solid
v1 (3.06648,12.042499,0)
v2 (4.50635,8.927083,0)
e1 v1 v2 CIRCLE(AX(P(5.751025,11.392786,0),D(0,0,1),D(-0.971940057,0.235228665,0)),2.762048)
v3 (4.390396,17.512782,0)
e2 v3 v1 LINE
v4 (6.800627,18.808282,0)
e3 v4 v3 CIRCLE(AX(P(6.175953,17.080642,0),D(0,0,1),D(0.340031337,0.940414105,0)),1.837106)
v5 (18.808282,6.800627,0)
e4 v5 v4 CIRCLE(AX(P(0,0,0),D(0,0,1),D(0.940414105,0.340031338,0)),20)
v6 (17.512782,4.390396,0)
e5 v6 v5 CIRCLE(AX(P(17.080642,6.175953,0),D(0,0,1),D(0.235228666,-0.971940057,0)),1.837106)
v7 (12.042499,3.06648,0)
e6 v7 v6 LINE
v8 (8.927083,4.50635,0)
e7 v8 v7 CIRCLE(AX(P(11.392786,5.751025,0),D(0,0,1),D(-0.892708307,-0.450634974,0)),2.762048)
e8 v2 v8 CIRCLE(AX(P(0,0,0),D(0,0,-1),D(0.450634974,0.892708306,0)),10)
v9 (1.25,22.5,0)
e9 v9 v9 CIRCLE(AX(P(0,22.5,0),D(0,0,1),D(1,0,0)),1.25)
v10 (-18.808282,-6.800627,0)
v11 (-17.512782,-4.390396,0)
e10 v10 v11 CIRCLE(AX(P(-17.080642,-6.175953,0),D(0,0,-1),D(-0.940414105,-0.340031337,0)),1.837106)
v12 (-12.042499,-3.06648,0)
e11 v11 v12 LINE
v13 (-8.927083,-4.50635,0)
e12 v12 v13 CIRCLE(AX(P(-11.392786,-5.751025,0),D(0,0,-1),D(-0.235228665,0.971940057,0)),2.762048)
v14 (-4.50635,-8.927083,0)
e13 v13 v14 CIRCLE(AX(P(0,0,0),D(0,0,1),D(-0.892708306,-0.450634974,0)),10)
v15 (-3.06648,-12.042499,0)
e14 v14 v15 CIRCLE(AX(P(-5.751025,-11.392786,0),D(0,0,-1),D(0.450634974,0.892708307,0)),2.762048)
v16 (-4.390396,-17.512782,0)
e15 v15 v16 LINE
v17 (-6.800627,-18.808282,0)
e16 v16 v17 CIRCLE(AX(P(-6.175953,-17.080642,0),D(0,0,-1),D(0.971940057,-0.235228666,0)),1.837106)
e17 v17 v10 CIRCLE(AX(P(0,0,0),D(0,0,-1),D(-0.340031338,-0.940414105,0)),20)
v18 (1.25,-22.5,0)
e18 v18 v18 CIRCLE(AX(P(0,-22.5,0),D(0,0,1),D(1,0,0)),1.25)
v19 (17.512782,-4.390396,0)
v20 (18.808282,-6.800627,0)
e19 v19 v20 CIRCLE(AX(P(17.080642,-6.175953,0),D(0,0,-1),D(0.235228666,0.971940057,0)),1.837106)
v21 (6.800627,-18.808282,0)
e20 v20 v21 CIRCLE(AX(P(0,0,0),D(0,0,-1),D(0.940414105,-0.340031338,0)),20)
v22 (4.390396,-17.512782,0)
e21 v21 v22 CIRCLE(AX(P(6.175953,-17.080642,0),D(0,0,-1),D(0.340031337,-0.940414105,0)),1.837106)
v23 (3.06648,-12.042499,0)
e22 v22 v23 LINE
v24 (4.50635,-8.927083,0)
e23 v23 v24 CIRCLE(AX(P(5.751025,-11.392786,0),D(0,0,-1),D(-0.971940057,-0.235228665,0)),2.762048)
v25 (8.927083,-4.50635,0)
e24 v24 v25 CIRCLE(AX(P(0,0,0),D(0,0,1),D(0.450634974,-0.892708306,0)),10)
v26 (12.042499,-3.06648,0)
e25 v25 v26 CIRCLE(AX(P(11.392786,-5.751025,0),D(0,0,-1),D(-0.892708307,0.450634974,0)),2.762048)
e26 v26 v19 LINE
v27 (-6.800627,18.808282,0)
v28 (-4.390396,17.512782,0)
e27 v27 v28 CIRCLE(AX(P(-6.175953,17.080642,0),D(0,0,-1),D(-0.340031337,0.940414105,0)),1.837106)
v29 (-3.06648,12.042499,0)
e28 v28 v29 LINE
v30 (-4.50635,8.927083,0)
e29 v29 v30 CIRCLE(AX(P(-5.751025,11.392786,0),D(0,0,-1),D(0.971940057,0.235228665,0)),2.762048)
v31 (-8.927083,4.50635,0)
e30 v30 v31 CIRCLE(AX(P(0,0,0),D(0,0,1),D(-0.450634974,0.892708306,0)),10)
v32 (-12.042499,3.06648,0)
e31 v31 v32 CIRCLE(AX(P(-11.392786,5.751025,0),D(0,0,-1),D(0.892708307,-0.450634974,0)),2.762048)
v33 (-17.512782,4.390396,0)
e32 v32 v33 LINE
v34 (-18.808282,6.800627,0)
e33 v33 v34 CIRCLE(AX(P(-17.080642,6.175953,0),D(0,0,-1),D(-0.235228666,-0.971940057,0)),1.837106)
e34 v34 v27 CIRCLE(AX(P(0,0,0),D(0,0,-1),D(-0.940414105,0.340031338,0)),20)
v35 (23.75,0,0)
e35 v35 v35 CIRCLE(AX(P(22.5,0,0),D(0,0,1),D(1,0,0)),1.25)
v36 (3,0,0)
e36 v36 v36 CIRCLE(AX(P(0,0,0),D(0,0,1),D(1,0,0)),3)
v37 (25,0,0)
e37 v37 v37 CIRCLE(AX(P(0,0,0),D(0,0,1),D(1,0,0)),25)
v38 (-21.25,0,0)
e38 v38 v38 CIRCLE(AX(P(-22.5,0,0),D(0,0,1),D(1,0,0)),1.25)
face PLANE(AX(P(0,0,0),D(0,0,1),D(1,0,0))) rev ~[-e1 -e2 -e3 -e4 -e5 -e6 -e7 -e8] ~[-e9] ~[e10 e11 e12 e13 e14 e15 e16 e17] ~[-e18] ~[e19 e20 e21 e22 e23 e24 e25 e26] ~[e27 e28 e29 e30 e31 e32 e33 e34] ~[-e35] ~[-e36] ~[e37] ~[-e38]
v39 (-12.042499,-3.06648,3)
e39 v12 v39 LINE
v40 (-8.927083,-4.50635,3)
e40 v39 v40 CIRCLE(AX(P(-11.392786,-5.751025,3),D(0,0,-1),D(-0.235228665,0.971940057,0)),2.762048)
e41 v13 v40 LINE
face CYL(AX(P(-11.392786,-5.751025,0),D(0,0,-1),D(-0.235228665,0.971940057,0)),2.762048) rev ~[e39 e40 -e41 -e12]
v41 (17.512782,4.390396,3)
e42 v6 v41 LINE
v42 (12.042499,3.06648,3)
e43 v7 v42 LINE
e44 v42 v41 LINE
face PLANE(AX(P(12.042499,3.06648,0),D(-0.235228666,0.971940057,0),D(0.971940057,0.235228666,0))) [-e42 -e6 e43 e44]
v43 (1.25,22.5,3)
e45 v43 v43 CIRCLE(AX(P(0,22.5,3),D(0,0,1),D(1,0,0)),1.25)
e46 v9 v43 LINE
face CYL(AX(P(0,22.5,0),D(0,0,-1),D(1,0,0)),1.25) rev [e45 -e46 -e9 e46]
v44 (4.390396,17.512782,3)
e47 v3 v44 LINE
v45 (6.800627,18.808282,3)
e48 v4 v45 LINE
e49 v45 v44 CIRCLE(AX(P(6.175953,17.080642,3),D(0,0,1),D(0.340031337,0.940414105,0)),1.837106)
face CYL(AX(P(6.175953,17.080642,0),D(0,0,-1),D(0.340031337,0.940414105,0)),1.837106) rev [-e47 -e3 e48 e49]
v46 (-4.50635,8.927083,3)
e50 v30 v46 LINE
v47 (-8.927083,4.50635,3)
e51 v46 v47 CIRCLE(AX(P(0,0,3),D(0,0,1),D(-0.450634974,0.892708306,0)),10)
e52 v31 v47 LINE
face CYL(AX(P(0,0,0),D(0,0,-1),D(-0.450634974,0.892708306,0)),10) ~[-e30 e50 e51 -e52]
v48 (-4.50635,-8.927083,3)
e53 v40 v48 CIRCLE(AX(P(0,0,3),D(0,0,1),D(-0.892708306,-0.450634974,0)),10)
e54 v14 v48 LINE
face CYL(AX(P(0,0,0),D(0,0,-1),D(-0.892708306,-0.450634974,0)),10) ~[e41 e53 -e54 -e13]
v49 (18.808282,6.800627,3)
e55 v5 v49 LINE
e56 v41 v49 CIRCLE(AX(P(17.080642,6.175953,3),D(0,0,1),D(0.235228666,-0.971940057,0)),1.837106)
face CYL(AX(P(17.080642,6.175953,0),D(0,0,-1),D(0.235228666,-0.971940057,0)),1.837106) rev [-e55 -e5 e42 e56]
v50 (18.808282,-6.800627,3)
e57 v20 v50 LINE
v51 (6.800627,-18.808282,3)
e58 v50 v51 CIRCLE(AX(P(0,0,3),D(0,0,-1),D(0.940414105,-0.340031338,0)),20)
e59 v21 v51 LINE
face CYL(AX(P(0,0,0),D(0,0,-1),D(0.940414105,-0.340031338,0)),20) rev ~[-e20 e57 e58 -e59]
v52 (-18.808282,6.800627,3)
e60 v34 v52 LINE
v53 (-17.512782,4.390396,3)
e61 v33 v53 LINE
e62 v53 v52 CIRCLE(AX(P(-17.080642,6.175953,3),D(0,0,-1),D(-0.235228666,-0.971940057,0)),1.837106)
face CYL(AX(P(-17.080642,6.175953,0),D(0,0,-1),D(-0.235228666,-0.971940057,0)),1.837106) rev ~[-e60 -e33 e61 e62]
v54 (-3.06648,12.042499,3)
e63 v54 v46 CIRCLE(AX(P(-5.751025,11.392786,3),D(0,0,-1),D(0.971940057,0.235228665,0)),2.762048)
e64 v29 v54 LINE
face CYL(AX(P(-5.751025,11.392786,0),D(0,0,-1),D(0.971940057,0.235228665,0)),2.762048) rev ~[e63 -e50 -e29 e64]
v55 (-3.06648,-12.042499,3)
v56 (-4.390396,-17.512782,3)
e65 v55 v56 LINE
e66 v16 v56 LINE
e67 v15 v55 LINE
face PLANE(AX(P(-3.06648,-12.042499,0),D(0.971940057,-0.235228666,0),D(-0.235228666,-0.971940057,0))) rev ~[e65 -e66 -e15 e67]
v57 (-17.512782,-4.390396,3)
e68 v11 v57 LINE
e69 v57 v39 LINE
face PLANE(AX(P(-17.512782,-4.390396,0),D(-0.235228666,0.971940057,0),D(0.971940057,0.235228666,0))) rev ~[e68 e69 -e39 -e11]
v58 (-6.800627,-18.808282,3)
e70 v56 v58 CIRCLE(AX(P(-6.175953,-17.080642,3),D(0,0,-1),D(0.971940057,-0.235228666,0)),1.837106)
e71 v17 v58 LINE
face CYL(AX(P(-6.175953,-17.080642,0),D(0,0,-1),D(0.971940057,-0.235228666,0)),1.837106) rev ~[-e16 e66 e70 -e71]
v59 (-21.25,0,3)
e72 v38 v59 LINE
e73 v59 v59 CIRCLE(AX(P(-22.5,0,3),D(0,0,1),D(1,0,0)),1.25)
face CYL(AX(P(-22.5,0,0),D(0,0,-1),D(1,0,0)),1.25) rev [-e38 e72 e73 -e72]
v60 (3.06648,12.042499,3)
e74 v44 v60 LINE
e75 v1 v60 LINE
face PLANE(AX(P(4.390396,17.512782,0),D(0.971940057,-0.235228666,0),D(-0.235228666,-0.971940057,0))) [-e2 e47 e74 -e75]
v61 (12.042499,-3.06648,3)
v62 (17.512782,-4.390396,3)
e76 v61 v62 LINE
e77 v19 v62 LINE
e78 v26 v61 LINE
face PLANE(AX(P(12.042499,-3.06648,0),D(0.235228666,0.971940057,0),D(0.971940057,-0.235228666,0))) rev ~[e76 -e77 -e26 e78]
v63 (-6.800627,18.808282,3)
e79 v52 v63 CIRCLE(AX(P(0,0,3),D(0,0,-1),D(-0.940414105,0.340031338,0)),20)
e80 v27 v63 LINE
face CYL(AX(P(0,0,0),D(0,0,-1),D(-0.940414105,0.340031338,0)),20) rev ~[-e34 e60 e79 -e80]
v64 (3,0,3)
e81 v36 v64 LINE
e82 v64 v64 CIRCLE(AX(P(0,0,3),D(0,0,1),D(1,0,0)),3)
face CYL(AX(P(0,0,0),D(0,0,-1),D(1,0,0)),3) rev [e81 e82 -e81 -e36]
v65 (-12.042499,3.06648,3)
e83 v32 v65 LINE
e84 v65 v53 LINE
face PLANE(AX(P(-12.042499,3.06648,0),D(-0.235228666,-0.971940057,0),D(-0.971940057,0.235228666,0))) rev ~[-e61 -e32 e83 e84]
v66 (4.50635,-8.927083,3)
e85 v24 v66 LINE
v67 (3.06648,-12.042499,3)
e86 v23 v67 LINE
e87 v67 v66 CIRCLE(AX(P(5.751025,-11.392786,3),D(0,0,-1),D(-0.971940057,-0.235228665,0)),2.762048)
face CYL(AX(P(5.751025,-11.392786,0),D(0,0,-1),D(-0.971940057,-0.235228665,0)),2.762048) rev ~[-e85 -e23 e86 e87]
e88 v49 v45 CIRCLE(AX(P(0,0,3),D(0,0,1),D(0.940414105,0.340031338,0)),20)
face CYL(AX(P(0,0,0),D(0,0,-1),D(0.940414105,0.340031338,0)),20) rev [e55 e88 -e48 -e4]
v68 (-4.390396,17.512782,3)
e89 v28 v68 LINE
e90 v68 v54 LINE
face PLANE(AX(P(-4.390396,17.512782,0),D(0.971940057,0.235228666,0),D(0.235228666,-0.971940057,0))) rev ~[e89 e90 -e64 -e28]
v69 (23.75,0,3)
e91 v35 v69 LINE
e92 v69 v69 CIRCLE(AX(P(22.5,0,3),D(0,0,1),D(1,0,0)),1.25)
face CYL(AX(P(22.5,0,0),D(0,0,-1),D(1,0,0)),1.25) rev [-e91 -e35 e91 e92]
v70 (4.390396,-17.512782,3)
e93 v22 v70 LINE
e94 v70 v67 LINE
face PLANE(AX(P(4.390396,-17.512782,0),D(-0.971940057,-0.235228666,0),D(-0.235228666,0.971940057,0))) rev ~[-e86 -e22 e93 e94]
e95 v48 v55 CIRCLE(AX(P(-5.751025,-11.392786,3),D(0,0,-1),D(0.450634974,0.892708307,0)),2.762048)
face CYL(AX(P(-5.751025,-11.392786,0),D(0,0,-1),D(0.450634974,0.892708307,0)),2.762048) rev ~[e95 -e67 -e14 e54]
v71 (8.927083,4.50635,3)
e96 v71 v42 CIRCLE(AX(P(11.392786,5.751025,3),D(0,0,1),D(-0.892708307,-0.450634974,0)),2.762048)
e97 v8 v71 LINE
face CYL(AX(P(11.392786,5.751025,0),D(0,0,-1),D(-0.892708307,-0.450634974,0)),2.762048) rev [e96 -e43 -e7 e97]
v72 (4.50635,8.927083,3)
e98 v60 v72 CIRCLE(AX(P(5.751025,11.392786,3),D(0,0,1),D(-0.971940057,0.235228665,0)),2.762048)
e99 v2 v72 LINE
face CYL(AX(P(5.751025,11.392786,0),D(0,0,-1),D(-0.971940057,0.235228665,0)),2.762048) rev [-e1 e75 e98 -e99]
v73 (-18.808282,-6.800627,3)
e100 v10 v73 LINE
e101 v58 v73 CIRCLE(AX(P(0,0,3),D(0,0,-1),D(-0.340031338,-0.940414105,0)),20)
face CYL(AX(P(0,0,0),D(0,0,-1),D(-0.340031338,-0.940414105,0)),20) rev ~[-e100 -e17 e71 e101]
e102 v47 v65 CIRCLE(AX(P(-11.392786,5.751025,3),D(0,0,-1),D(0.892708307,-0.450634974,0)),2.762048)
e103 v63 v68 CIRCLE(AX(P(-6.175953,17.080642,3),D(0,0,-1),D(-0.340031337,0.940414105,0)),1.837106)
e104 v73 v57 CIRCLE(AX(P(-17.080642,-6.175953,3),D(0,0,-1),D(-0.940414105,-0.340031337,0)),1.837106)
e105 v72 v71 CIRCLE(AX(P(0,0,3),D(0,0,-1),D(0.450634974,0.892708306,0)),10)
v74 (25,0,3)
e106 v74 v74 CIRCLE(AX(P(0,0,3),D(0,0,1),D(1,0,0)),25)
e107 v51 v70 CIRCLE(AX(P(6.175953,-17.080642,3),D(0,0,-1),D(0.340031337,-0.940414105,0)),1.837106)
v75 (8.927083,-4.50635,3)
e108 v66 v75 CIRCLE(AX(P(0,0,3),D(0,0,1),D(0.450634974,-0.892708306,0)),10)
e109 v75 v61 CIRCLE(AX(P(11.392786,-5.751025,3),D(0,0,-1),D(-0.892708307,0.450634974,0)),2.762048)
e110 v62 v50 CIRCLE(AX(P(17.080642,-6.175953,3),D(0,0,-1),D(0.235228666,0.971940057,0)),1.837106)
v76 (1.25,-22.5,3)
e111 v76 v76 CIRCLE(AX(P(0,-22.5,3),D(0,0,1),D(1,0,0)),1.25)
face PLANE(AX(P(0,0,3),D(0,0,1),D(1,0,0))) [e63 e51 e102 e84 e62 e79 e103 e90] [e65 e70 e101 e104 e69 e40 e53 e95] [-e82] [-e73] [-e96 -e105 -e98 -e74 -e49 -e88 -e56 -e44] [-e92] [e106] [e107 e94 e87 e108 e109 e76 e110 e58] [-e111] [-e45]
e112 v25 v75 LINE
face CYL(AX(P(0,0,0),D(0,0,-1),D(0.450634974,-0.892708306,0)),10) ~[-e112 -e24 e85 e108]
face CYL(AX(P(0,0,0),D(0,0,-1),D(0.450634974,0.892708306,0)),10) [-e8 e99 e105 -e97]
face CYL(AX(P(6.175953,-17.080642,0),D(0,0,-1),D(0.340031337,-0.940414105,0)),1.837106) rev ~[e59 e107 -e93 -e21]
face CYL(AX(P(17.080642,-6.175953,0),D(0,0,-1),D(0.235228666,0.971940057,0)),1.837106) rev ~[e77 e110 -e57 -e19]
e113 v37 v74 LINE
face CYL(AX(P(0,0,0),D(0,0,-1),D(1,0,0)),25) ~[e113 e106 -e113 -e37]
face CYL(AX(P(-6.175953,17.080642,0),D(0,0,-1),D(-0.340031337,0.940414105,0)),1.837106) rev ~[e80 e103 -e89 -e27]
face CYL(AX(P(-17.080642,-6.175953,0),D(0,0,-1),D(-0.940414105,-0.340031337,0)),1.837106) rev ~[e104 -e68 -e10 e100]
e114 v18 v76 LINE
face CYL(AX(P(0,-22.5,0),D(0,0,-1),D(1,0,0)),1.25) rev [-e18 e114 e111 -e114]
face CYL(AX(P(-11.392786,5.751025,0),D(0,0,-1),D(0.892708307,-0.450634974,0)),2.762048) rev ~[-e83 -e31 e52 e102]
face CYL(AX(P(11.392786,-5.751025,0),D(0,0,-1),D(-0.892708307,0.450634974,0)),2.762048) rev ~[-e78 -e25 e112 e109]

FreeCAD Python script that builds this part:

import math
import FreeCAD as App
import Part
import Sketcher

V = App.Vector

doc = App.newDocument("Part")
params = doc.addObject("Spreadsheet::Sheet", "Params")
for row, (alias, value) in enumerate([
    ("sketch1_diameter", "50 mm"),
    ("sketch1_diameter2", "6 mm"),
    ("sketch1_radius", "10 mm"),
    ("sketch1_radius2", "20 mm"),
    ("sketch1_diameter3", "2.5 mm"),
    ("pad1_length", "3 mm"),
], start=1):
    params.set(f"A{row}", alias)
    params.set(f"B{row}", "=" + value)
    params.setAlias(f"B{row}", alias)

body = doc.addObject("PartDesign::Body", "Body")

sketch1 = doc.addObject("Sketcher::SketchObject", "Sketch")
body.addObject(sketch1)
sketch1.AttachmentSupport = (doc.XY_Plane, [""])
sketch1.MapMode = "FlatFace"
sketch1.addGeometry([
    Part.Circle(V(0, 0, 0), V(0, 0, 1), 25),
    Part.ArcOfCircle(Part.Circle(V(-17.080642, -6.175953, 0), V(0, 0, 1), 1.837106), math.radians(103.605102), math.radians(199.878783)),
    Part.LineSegment(V(-17.512782, -4.390396, 0), V(-12.042499, -3.06648, 0)),
    Part.ArcOfCircle(Part.Circle(V(-11.392786, -5.751025, 0), V(0, 0, 1), 2.762048), math.radians(26.78443), math.radians(103.605102)),
    Part.ArcOfCircle(Part.Circle(V(0, 0, 0), V(0, 0, 1), 10), math.radians(-153.215569), math.radians(-116.784431)),
    Part.ArcOfCircle(Part.Circle(V(-5.751025, -11.392786, 0), V(0, 0, 1), 2.762048), math.radians(-13.605102), math.radians(63.21557)),
    Part.LineSegment(V(-3.06648, -12.042499, 0), V(-4.390396, -17.512782, 0)),
    Part.ArcOfCircle(Part.Circle(V(-6.175953, -17.080642, 0), V(0, 0, 1), 1.837106), math.radians(-109.878783), math.radians(-13.605102)),
    Part.ArcOfCircle(Part.Circle(V(0, 0, 0), V(0, 0, 1), 20), math.radians(-160.121217), math.radians(-109.878783)),
    Part.Circle(V(0, -22.5, 0), V(0, 0, 1), 1.25),
    Part.ArcOfCircle(Part.Circle(V(6.175953, -17.080642, 0), V(0, 0, 1), 1.837106), math.radians(-166.394898), math.radians(-70.121217)),
    Part.LineSegment(V(4.390396, -17.512782, 0), V(3.06648, -12.042499, 0)),
    Part.ArcOfCircle(Part.Circle(V(5.751025, -11.392786, 0), V(0, 0, 1), 2.762048), math.radians(116.78443), math.radians(193.605102)),
    Part.ArcOfCircle(Part.Circle(V(0, 0, 0), V(0, 0, 1), 10), math.radians(-63.215569), math.radians(-26.784431)),
    Part.ArcOfCircle(Part.Circle(V(11.392786, -5.751025, 0), V(0, 0, 1), 2.762048), math.radians(76.394898), math.radians(153.21557)),
    Part.LineSegment(V(12.042499, -3.06648, 0), V(17.512782, -4.390396, 0)),
    Part.ArcOfCircle(Part.Circle(V(17.080642, -6.175953, 0), V(0, 0, 1), 1.837106), math.radians(-19.878783), math.radians(76.394898)),
    Part.ArcOfCircle(Part.Circle(V(0, 0, 0), V(0, 0, 1), 20), math.radians(-70.121217), math.radians(-19.878783)),
    Part.Circle(V(-22.5, 0, 0), V(0, 0, 1), 1.25),
    Part.ArcOfCircle(Part.Circle(V(-6.175953, 17.080642, 0), V(0, 0, 1), 1.837106), math.radians(13.605102), math.radians(109.878783)),
    Part.LineSegment(V(-4.390396, 17.512782, 0), V(-3.06648, 12.042499, 0)),
    Part.ArcOfCircle(Part.Circle(V(-5.751025, 11.392786, 0), V(0, 0, 1), 2.762048), math.radians(-63.21557), math.radians(13.605102)),
    Part.ArcOfCircle(Part.Circle(V(0, 0, 0), V(0, 0, 1), 10), math.radians(116.784431), math.radians(153.215569)),
    Part.ArcOfCircle(Part.Circle(V(-11.392786, 5.751025, 0), V(0, 0, 1), 2.762048), math.radians(-103.605102), math.radians(-26.78443)),
    Part.LineSegment(V(-12.042499, 3.06648, 0), V(-17.512782, 4.390396, 0)),
    Part.ArcOfCircle(Part.Circle(V(-17.080642, 6.175953, 0), V(0, 0, 1), 1.837106), math.radians(160.121217), math.radians(256.394898)),
    Part.ArcOfCircle(Part.Circle(V(0, 0, 0), V(0, 0, 1), 20), math.radians(109.878783), math.radians(160.121217)),
    Part.Circle(V(0, 0, 0), V(0, 0, 1), 3),
    Part.LineSegment(V(3.06648, 12.042499, 0), V(4.390396, 17.512782, 0)),
    Part.ArcOfCircle(Part.Circle(V(6.175953, 17.080642, 0), V(0, 0, 1), 1.837106), math.radians(70.121217), math.radians(166.394898)),
    Part.ArcOfCircle(Part.Circle(V(0, 0, 0), V(0, 0, 1), 20), math.radians(19.878783), math.radians(70.121217)),
    Part.ArcOfCircle(Part.Circle(V(17.080642, 6.175953, 0), V(0, 0, 1), 1.837106), math.radians(-76.394898), math.radians(19.878783)),
    Part.LineSegment(V(17.512782, 4.390396, 0), V(12.042499, 3.06648, 0)),
    Part.ArcOfCircle(Part.Circle(V(11.392786, 5.751025, 0), V(0, 0, 1), 2.762048), math.radians(-153.21557), math.radians(-76.394898)),
    Part.ArcOfCircle(Part.Circle(V(0, 0, 0), V(0, 0, 1), 10), math.radians(26.784431), math.radians(63.215569)),
    Part.ArcOfCircle(Part.Circle(V(5.751025, 11.392786, 0), V(0, 0, 1), 2.762048), math.radians(166.394898), math.radians(243.21557)),
    Part.Circle(V(22.5, 0, 0), V(0, 0, 1), 1.25),
    Part.Circle(V(0, 22.5, 0), V(0, 0, 1), 1.25),
], False)
sketch1.addConstraint([
    Sketcher.Constraint("Tangent", 1, 1, 2, 1),
    Sketcher.Constraint("Tangent", 2, 2, 3, 2),
    Sketcher.Constraint("Tangent", 3, 1, 4, 1),
    Sketcher.Constraint("Tangent", 4, 2, 5, 2),
    Sketcher.Constraint("Tangent", 5, 1, 6, 1),
    Sketcher.Constraint("Tangent", 6, 2, 7, 2),
    Sketcher.Constraint("Tangent", 7, 1, 8, 2),
    Sketcher.Constraint("Tangent", 8, 1, 1, 2),
    Sketcher.Constraint("Tangent", 10, 1, 11, 1),
    Sketcher.Constraint("Tangent", 11, 2, 12, 2),
    Sketcher.Constraint("Tangent", 12, 1, 13, 1),
    Sketcher.Constraint("Tangent", 13, 2, 14, 2),
    Sketcher.Constraint("Tangent", 14, 1, 15, 1),
    Sketcher.Constraint("Tangent", 15, 2, 16, 2),
    Sketcher.Constraint("Tangent", 16, 1, 17, 2),
    Sketcher.Constraint("Tangent", 17, 1, 10, 2),
    Sketcher.Constraint("Tangent", 19, 1, 20, 1),
    Sketcher.Constraint("Tangent", 20, 2, 21, 2),
    Sketcher.Constraint("Tangent", 21, 1, 22, 1),
    Sketcher.Constraint("Tangent", 22, 2, 23, 2),
    Sketcher.Constraint("Tangent", 23, 1, 24, 1),
    Sketcher.Constraint("Tangent", 24, 2, 25, 2),
    Sketcher.Constraint("Tangent", 25, 1, 26, 2),
    Sketcher.Constraint("Tangent", 26, 1, 19, 2),
    Sketcher.Constraint("Tangent", 28, 2, 29, 2),
    Sketcher.Constraint("Tangent", 29, 1, 30, 2),
    Sketcher.Constraint("Tangent", 30, 1, 31, 2),
    Sketcher.Constraint("Tangent", 31, 1, 32, 1),
    Sketcher.Constraint("Tangent", 32, 2, 33, 2),
    Sketcher.Constraint("Tangent", 33, 1, 34, 1),
    Sketcher.Constraint("Tangent", 34, 2, 35, 2),
    Sketcher.Constraint("Tangent", 35, 1, 28, 1),
    Sketcher.Constraint("Coincident", 0, 3, -1, 1),
    Sketcher.Constraint("Coincident", 4, 3, -1, 1),
    Sketcher.Constraint("Coincident", 8, 3, -1, 1),
    Sketcher.Constraint("Coincident", 13, 3, -1, 1),
    Sketcher.Constraint("Coincident", 17, 3, -1, 1),
    Sketcher.Constraint("Coincident", 22, 3, -1, 1),
    Sketcher.Constraint("Coincident", 26, 3, -1, 1),
    Sketcher.Constraint("Coincident", 27, 3, -1, 1),
    Sketcher.Constraint("Coincident", 30, 3, -1, 1),
    Sketcher.Constraint("Coincident", 34, 3, -1, 1),
    Sketcher.Constraint("Equal", 3, 5),
    Sketcher.Constraint("Equal", 1, 7),
    Sketcher.Constraint("Equal", 7, 10),
    Sketcher.Constraint("Equal", 5, 12),
    Sketcher.Constraint("Equal", 4, 13),
    Sketcher.Constraint("Equal", 12, 14),
    Sketcher.Constraint("Equal", 10, 16),
    Sketcher.Constraint("Equal", 8, 17),
    Sketcher.Constraint("Equal", 9, 18),
    Sketcher.Constraint("Equal", 16, 19),
    Sketcher.Constraint("Equal", 14, 21),
    Sketcher.Constraint("Equal", 13, 22),
    Sketcher.Constraint("Equal", 21, 23),
    Sketcher.Constraint("Equal", 19, 25),
    Sketcher.Constraint("Equal", 17, 26),
    Sketcher.Constraint("Equal", 25, 29),
    Sketcher.Constraint("Equal", 26, 30),
    Sketcher.Constraint("Equal", 29, 31),
    Sketcher.Constraint("Equal", 23, 33),
    Sketcher.Constraint("Equal", 22, 34),
    Sketcher.Constraint("Equal", 33, 35),
    Sketcher.Constraint("Equal", 18, 36),
    Sketcher.Constraint("Equal", 36, 37),
    Sketcher.Constraint("Symmetric", 18, 3, 36, 3, -1, 1),
    Sketcher.Constraint("Symmetric", 9, 3, 37, 3, -1, 1),
    Sketcher.Constraint("Symmetric", 10, 1, 19, 1, -1, 1),
    Sketcher.Constraint("Symmetric", 14, 1, 23, 1, -1, 1),
    Sketcher.Constraint("Symmetric", 6, 2, 28, 2, -1, 1),
    Sketcher.Constraint("Symmetric", 1, 1, 31, 1, -1, 1),
    Sketcher.Constraint("Symmetric", 6, 2, 10, 1, -2),
    Sketcher.Constraint("Symmetric", 2, 2, 14, 1, -2),
    Sketcher.Constraint("PointOnObject", 9, 3, -2),
    Sketcher.Constraint("PointOnObject", 18, 3, -1),
    Sketcher.Constraint("Perpendicular", 2, 11),
    Sketcher.Constraint("Equal", 2, 6),
    Sketcher.Constraint("Diameter", 0, 50.0),
    Sketcher.Constraint("Diameter", 27, 6.0),
    Sketcher.Constraint("Radius", 4, 10.0),
    Sketcher.Constraint("Radius", 8, 20.0),
    Sketcher.Constraint("Diameter", 9, 2.5),
    Sketcher.Constraint("DistanceY", 9, 3, -1, 1, 22.5),
    Sketcher.Constraint("DistanceX", 18, 3, -1, 1, 22.5),
    Sketcher.Constraint("Radius", 3, 2.762048),
    Sketcher.Constraint("Radius", 1, 1.837106),
    Sketcher.Constraint("DistanceX", 2, 2, -1, 1, 12.042499),
    Sketcher.Constraint("Distance", 2, 5.62821),
])
sketch1.setExpression("Constraints[77]", "Params.sketch1_diameter")
sketch1.setExpression("Constraints[78]", "Params.sketch1_diameter2")
sketch1.setExpression("Constraints[79]", "Params.sketch1_radius")
sketch1.setExpression("Constraints[80]", "Params.sketch1_radius2")
sketch1.setExpression("Constraints[81]", "Params.sketch1_diameter3")
pad1 = doc.addObject("PartDesign::Pad", "Pad")
body.addObject(pad1)
pad1.Profile = sketch1
pad1.setExpression("Length", "Params.pad1_length")

doc.recompute()
